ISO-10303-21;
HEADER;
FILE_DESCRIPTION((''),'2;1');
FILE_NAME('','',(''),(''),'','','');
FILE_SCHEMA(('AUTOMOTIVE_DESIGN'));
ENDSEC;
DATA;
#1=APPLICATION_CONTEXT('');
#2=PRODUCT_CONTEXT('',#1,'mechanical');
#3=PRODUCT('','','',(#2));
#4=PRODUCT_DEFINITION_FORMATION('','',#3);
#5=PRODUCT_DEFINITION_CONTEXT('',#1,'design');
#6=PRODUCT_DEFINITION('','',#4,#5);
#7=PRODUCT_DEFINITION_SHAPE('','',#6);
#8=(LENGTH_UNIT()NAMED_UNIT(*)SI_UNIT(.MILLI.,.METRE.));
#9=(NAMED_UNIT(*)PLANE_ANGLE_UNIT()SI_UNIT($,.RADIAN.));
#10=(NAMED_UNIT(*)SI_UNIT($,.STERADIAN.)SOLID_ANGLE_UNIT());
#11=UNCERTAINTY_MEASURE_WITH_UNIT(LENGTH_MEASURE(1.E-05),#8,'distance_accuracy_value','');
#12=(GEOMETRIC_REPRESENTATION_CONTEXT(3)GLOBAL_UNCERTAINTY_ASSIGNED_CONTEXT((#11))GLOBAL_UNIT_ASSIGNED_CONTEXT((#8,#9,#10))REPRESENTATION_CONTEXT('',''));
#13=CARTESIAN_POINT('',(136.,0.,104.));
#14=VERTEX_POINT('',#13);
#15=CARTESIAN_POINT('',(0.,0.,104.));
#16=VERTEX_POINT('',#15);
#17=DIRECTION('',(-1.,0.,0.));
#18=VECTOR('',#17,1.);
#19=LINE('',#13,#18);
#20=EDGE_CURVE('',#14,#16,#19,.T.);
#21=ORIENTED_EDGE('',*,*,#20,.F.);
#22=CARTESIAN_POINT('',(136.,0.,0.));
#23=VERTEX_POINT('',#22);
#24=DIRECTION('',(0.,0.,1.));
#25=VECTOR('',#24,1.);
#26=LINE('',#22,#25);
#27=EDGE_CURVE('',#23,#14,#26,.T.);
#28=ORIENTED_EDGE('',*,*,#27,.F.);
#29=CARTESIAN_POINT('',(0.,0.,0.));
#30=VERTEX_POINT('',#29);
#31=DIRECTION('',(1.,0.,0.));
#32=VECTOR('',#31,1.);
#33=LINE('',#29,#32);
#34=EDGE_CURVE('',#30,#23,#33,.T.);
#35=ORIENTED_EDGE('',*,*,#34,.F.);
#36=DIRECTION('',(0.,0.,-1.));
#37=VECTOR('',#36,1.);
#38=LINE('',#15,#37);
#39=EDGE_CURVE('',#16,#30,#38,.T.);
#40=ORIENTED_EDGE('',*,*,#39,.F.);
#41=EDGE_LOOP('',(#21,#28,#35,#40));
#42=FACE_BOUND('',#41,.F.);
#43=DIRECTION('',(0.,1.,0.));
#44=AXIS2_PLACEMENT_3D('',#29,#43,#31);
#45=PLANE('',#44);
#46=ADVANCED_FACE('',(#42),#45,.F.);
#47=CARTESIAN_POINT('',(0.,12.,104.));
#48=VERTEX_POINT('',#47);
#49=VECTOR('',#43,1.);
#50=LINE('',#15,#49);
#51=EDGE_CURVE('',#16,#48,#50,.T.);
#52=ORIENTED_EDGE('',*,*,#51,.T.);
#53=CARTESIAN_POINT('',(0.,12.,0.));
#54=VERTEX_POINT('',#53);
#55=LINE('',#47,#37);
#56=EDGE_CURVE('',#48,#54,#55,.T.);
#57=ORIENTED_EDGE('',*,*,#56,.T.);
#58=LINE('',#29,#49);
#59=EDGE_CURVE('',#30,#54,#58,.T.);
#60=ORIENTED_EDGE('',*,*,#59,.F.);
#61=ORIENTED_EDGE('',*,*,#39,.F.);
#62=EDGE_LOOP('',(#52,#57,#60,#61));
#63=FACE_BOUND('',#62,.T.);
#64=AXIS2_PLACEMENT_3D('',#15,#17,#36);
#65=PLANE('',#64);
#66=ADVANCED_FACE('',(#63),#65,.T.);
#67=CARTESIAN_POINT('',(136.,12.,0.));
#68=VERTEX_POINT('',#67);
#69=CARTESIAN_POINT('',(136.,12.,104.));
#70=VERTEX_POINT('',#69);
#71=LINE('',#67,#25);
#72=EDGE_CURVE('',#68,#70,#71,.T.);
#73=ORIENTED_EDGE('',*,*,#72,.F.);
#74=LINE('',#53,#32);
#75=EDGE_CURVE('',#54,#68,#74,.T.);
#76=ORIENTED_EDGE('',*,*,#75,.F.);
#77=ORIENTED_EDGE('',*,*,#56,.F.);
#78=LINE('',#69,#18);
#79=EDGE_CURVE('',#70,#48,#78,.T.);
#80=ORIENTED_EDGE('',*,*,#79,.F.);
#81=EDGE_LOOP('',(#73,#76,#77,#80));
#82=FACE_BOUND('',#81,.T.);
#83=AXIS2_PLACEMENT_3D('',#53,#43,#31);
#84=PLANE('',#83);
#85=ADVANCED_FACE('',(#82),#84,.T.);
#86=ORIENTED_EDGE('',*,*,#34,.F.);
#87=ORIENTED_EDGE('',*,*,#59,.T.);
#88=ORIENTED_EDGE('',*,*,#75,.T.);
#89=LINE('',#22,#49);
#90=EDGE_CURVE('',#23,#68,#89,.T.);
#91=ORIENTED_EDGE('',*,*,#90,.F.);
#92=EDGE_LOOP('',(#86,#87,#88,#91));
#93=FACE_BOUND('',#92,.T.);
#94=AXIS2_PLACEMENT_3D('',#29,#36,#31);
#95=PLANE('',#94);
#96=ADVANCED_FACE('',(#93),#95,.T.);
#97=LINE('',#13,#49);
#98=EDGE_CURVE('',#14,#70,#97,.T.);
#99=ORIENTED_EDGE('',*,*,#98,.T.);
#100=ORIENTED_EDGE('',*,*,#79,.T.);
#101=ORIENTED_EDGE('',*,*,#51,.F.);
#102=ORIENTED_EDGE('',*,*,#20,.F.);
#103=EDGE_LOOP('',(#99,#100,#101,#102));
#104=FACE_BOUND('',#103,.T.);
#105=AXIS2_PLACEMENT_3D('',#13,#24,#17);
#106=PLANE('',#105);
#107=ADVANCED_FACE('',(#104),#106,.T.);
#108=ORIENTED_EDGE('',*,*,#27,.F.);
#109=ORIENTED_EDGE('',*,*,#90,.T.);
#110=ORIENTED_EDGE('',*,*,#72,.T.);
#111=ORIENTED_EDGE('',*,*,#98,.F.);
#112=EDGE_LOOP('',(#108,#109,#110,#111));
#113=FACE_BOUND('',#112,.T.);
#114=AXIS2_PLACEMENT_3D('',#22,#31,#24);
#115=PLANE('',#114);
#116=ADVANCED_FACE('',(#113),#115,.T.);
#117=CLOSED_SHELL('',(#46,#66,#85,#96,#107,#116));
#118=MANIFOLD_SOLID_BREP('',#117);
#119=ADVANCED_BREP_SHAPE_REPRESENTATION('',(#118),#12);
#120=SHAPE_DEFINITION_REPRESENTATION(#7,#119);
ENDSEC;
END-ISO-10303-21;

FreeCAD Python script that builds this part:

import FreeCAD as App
import Part
import Sketcher
from FreeCAD import Vector


def add_polygon(sketch, points):
    """Adds a closed chain of lines whose ends are joined by coincident constraints."""
    first, n = sketch.GeometryCount, len(points)
    for a, b in zip(points, points[1:] + points[:1]):
        sketch.addGeometry(Part.LineSegment(App.Vector(*a, 0), App.Vector(*b, 0)), False)
    for i in range(n):
        sketch.addConstraint(Sketcher.Constraint("Coincident", first + i, 2, first + (i + 1) % n, 1))

doc = App.newDocument("Part")
body = doc.addObject("PartDesign::Body", "Body")

sketch1 = body.newObject("Sketcher::SketchObject", "Sketch")
sketch1.AttachmentSupport = (doc.getObject("XZ_Plane"), [""])
sketch1.MapMode = "FlatFace"
add_polygon(sketch1, [(136, 0), (0, 0), (0, 104), (136, 104)])
sketch1.addConstraint([
    Sketcher.Constraint("Horizontal", 0),
    Sketcher.Constraint("Vertical", 1),
    Sketcher.Constraint("Horizontal", 2),
    Sketcher.Constraint("Vertical", 3),
    Sketcher.Constraint("Coincident", 0, 2, -1, 1),
    Sketcher.Constraint("DistanceX", 0, 2, 0, 1, 136.0),
    Sketcher.Constraint("DistanceY", 1, 1, 1, 2, 104.0),
])
pad1 = body.newObject("PartDesign::Pad", "Pad")
pad1.Profile = sketch1
pad1.Length = 12
pad1.Reversed = True

doc.recompute()
